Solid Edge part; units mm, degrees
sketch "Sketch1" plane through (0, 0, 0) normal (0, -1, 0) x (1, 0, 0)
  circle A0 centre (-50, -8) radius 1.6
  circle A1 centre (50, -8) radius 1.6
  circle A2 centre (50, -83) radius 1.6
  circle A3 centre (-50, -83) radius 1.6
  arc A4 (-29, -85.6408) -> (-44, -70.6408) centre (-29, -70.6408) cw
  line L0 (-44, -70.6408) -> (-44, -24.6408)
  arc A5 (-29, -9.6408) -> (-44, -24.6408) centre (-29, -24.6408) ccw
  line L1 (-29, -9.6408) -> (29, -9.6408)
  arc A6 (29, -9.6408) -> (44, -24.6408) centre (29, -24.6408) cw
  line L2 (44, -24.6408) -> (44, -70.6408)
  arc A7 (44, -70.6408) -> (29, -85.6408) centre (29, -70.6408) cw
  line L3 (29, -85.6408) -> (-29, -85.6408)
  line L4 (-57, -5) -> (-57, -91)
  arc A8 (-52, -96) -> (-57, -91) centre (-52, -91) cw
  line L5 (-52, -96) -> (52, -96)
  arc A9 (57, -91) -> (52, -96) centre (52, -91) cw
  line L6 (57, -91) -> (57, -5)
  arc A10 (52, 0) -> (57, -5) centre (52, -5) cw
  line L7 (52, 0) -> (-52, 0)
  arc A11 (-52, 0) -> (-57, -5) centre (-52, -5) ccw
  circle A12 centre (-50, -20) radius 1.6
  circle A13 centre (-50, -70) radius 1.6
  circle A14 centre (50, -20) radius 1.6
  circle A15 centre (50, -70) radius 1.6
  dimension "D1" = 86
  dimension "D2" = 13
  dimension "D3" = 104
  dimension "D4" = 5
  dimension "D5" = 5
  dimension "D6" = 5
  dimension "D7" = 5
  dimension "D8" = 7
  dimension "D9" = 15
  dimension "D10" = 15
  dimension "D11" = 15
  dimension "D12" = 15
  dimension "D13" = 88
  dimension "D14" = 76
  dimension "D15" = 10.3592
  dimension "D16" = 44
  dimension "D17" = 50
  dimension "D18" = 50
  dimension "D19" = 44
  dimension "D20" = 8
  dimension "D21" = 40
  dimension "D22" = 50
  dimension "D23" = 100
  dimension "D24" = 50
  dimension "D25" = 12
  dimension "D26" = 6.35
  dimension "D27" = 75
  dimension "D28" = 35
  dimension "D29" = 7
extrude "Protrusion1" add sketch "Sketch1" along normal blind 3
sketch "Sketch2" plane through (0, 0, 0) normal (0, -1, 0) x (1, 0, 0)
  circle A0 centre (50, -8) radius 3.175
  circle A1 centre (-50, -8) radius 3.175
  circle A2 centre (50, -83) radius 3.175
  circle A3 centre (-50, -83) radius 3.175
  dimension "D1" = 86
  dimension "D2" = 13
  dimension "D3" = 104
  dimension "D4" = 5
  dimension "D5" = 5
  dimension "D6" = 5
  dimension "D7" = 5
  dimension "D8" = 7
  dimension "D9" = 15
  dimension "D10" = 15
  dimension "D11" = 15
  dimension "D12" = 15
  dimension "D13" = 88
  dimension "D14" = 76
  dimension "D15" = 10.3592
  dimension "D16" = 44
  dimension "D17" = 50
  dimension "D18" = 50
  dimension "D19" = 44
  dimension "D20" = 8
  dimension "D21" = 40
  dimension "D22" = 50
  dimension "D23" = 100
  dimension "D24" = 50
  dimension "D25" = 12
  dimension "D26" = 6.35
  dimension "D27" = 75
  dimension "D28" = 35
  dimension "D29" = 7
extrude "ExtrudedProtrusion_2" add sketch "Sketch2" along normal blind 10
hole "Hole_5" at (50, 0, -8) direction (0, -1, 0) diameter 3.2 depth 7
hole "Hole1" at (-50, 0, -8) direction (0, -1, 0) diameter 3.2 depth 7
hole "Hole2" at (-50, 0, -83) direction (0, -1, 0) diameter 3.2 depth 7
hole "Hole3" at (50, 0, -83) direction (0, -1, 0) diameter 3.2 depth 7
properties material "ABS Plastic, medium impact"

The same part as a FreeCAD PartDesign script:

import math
import FreeCAD as App
import Part
import Sketcher
from FreeCAD import Vector

doc = App.newDocument("Part")
params = doc.addObject("Spreadsheet::Sheet", "Params")
for row, (alias, value) in enumerate([
    ("sketch1_radius", "5 mm"),
    ("sketch1_radius2", "15 mm"),
    ("sketch1_diameter", "3.2 mm"),
    ("sketch1_width", "104 mm"),
    ("sketch1_width2", "58 mm"),
    ("pad1_length", "3 mm"),
    ("sketch2_diameter", "6.35 mm"),
    ("pad2_length", "10 mm"),
    ("sketch3_diameter", "3.2 mm"),
    ("hole_diameter", "3.2 mm"),
    ("hole_depth", "7 mm"),
    ("sketch4_diameter", "3.2 mm"),
    ("hole2_diameter", "3.2 mm"),
    ("hole2_depth", "7 mm"),
    ("sketch5_diameter", "3.2 mm"),
    ("hole3_diameter", "3.2 mm"),
    ("hole3_depth", "7 mm"),
    ("sketch6_diameter", "3.2 mm"),
    ("hole4_diameter", "3.2 mm"),
    ("hole4_depth", "7 mm"),
], start=1):
    params.set(f"A{row}", alias)
    params.set(f"B{row}", "=" + value)
    params.setAlias(f"B{row}", alias)

body = doc.addObject("PartDesign::Body", "Body")

# Sketch on XZ plane
sketch1 = doc.addObject("Sketcher::SketchObject", "Sketch")
body.addObject(sketch1)
sketch1.AttachmentSupport = (doc.XZ_Plane, [""])
sketch1.MapMode = "FlatFace"
sketch1.addGeometry([
    Part.ArcOfCircle(Part.Circle(Vector(-52, -5, 0), Vector(0, 0, 1), 5), math.radians(90), math.radians(180)),  # 0
    Part.LineSegment(Vector(-57, -5, 0), Vector(-57, -91, 0)),  # 1
    Part.ArcOfCircle(Part.Circle(Vector(-52, -91, 0), Vector(0, 0, 1), 5), math.radians(180), math.radians(270)),  # 2
    Part.LineSegment(Vector(-52, -96, 0), Vector(52, -96, 0)),  # 3
    Part.ArcOfCircle(Part.Circle(Vector(52, -91, 0), Vector(0, 0, 1), 5), math.radians(-90), math.radians(0)),  # 4
    Part.LineSegment(Vector(57, -91, 0), Vector(57, -5, 0)),  # 5
    Part.ArcOfCircle(Part.Circle(Vector(52, -5, 0), Vector(0, 0, 1), 5), math.radians(0), math.radians(90)),  # 6
    Part.LineSegment(Vector(52, 0, 0), Vector(-52, 0, 0)),  # 7
    Part.Circle(Vector(-50, -83, 0), Vector(0, 0, 1), 1.6),  # 8
    Part.Circle(Vector(-50, -70, 0), Vector(0, 0, 1), 1.6),  # 9
    Part.Circle(Vector(50, -83, 0), Vector(0, 0, 1), 1.6),  # 10
    Part.Circle(Vector(50, -70, 0), Vector(0, 0, 1), 1.6),  # 11
    Part.Circle(Vector(-50, -20, 0), Vector(0, 0, 1), 1.6),  # 12
    Part.Circle(Vector(-50, -8, 0), Vector(0, 0, 1), 1.6),  # 13
    Part.LineSegment(Vector(29, -85.6, 0), Vector(-29, -85.6, 0)),  # 14
    Part.ArcOfCircle(Part.Circle(Vector(-29, -70.6, 0), Vector(0, 0, 1), 15), math.radians(180), math.radians(270)),  # 15
    Part.LineSegment(Vector(-44, -70.6, 0), Vector(-44, -24.6, 0)),  # 16
    Part.ArcOfCircle(Part.Circle(Vector(-29, -24.6, 0), Vector(0, 0, 1), 15), math.radians(90), math.radians(180)),  # 17
    Part.LineSegment(Vector(-29, -9.6, 0), Vector(29, -9.6, 0)),  # 18
    Part.ArcOfCircle(Part.Circle(Vector(29, -24.6, 0), Vector(0, 0, 1), 15), math.radians(0), math.radians(90)),  # 19
    Part.LineSegment(Vector(44, -24.6, 0), Vector(44, -70.6, 0)),  # 20
    Part.ArcOfCircle(Part.Circle(Vector(29, -70.6, 0), Vector(0, 0, 1), 15), math.radians(-90), math.radians(0)),  # 21
    Part.Circle(Vector(50, -20, 0), Vector(0, 0, 1), 1.6),  # 22
    Part.Circle(Vector(50, -8, 0), Vector(0, 0, 1), 1.6),  # 23
], False)
sketch1.addConstraint([
    Sketcher.Constraint("Tangent", 0, 2, 1, 1),
    Sketcher.Constraint("Tangent", 1, 2, 2, 1),
    Sketcher.Constraint("Tangent", 2, 2, 3, 1),
    Sketcher.Constraint("Tangent", 3, 2, 4, 1),
    Sketcher.Constraint("Tangent", 4, 2, 5, 1),
    Sketcher.Constraint("Tangent", 5, 2, 6, 1),
    Sketcher.Constraint("Tangent", 6, 2, 7, 1),
    Sketcher.Constraint("Tangent", 7, 2, 0, 1),
    Sketcher.Constraint("Tangent", 14, 2, 15, 2),
    Sketcher.Constraint("Tangent", 15, 1, 16, 1),
    Sketcher.Constraint("Tangent", 16, 2, 17, 2),
    Sketcher.Constraint("Tangent", 17, 1, 18, 1),
    Sketcher.Constraint("Tangent", 18, 2, 19, 2),
    Sketcher.Constraint("Tangent", 19, 1, 20, 1),
    Sketcher.Constraint("Tangent", 20, 2, 21, 2),
    Sketcher.Constraint("Tangent", 21, 1, 14, 1),
    Sketcher.Constraint("Vertical", 1),
    Sketcher.Constraint("Horizontal", 3),
    Sketcher.Constraint("Vertical", 5),
    Sketcher.Constraint("Horizontal", 7),
    Sketcher.Constraint("Horizontal", 14),
    Sketcher.Constraint("Vertical", 16),
    Sketcher.Constraint("Horizontal", 18),
    Sketcher.Constraint("Vertical", 20),
    Sketcher.Constraint("Equal", 0, 2),
    Sketcher.Constraint("Equal", 2, 4),
    Sketcher.Constraint("Equal", 4, 6),
    Sketcher.Constraint("Equal", 8, 9),
    Sketcher.Constraint("Equal", 9, 10),
    Sketcher.Constraint("Equal", 10, 11),
    Sketcher.Constraint("Equal", 11, 12),
    Sketcher.Constraint("Equal", 12, 13),
    Sketcher.Constraint("Equal", 15, 17),
    Sketcher.Constraint("Equal", 17, 19),
    Sketcher.Constraint("Equal", 19, 21),
    Sketcher.Constraint("Equal", 13, 22),
    Sketcher.Constraint("Equal", 22, 23),
    Sketcher.Constraint("Symmetric", 6, 2, 7, 2, -1, 1),
    Sketcher.Constraint("Symmetric", 8, 3, 10, 3, -2),
    Sketcher.Constraint("Symmetric", 9, 3, 11, 3, -2),
    Sketcher.Constraint("Symmetric", 12, 3, 22, 3, -2),
    Sketcher.Constraint("Symmetric", 13, 3, 23, 3, -2),
    Sketcher.Constraint("Vertical", 8, 3, 9, 3),
    Sketcher.Constraint("Vertical", 9, 3, 12, 3),
    Sketcher.Constraint("Vertical", 12, 3, 13, 3),
    Sketcher.Constraint("Radius", 0, 5.0),
    Sketcher.Constraint("Radius", 15, 15.0),
    Sketcher.Constraint("Diameter", 8, 3.2),
    Sketcher.Constraint("DistanceX", 3, 1, 3, 2, 104.0),
    Sketcher.Constraint("DistanceX", 14, 2, 14, 1, 58.0),
    Sketcher.Constraint("DistanceY", 1, 2, 1, 1, 86.0),
    Sketcher.Constraint("DistanceY", 16, 1, 16, 2, 46.0),
    Sketcher.Constraint("DistanceX", 8, 3, -1, 1, 50.0),
    Sketcher.Constraint("DistanceY", 8, 3, -1, 1, 83.0),
    Sketcher.Constraint("DistanceY", 9, 3, -1, 1, 70.0),
    Sketcher.Constraint("DistanceY", 12, 3, -1, 1, 20.0),
    Sketcher.Constraint("DistanceY", 13, 3, -1, 1, 8.0),
    Sketcher.Constraint("DistanceX", 15, 3, -1, 1, 29.0),
    Sketcher.Constraint("DistanceY", 15, 3, -1, 1, 70.6408),
])
sketch1.setExpression("Constraints[45]", "Params.sketch1_radius")
sketch1.setExpression("Constraints[46]", "Params.sketch1_radius2")
sketch1.setExpression("Constraints[47]", "Params.sketch1_diameter")
sketch1.setExpression("Constraints[48]", "Params.sketch1_width")
sketch1.setExpression("Constraints[49]", "Params.sketch1_width2")
pad1 = doc.addObject("PartDesign::Pad", "Pad")
body.addObject(pad1)
pad1.Profile = sketch1
pad1.setExpression("Length", "Params.pad1_length")

# Sketch on XZ plane
sketch2 = doc.addObject("Sketcher::SketchObject", "Sketch001")
body.addObject(sketch2)
sketch2.AttachmentSupport = (doc.XZ_Plane, [""])
sketch2.MapMode = "FlatFace"
sketch2.addGeometry([
    Part.Circle(Vector(50, -8, 0), Vector(0, 0, 1), 3.2),
    Part.Circle(Vector(-50, -8, 0), Vector(0, 0, 1), 3.2),
    Part.Circle(Vector(50, -83, 0), Vector(0, 0, 1), 3.2),
    Part.Circle(Vector(-50, -83, 0), Vector(0, 0, 1), 3.2),
], False)
sketch2.addConstraint([
    Sketcher.Constraint("Equal", 0, 1),
    Sketcher.Constraint("Equal", 1, 2),
    Sketcher.Constraint("Equal", 2, 3),
    Sketcher.Constraint("Symmetric", 0, 3, 1, 3, -2),
    Sketcher.Constraint("Symmetric", 2, 3, 3, 3, -2),
    Sketcher.Constraint("Vertical", 0, 3, 2, 3),
    Sketcher.Constraint("Diameter", 0, 6.35),
    Sketcher.Constraint("DistanceX", -1, 1, 0, 3, 50.0),
    Sketcher.Constraint("DistanceY", 0, 3, -1, 1, 8.0),
    Sketcher.Constraint("DistanceY", 2, 3, -1, 1, 83.0),
])
sketch2.setExpression("Constraints[6]", "Params.sketch2_diameter")
pad2 = doc.addObject("PartDesign::Pad", "Pad001")
body.addObject(pad2)
pad2.Profile = sketch2
pad2.setExpression("Length", "Params.pad2_length")

# Sketch on XZ plane
sketch3 = doc.addObject("Sketcher::SketchObject", "Sketch002")
body.addObject(sketch3)
sketch3.AttachmentSupport = (doc.XZ_Plane, [""])
sketch3.MapMode = "FlatFace"
sketch3.addGeometry(Part.Circle(Vector(50, -8, 0), Vector(0, 0, 1), 1.6), False)
sketch3.addConstraint([
    Sketcher.Constraint("Diameter", 0, 3.2),
    Sketcher.Constraint("DistanceX", -1, 1, 0, 3, 50.0),
    Sketcher.Constraint("DistanceY", 0, 3, -1, 1, 8.0),
])
sketch3.setExpression("Constraints[0]", "Params.sketch3_diameter")
doc.recompute()
hole = doc.addObject("PartDesign::Hole", "Hole")
body.addObject(hole)
hole.Profile = sketch3
hole.ThreadType = "None"
hole.setExpression("Diameter", "Params.hole_diameter")
hole.DepthType = "Dimension"
hole.setExpression("Depth", "Params.hole_depth")
hole.DrillPoint = "Flat"
hole.Reversed = True

# Sketch on XZ plane
sketch4 = doc.addObject("Sketcher::SketchObject", "Sketch003")
body.addObject(sketch4)
sketch4.AttachmentSupport = (doc.XZ_Plane, [""])
sketch4.MapMode = "FlatFace"
sketch4.addGeometry(Part.Circle(Vector(-50, -8, 0), Vector(0, 0, 1), 1.6), False)
sketch4.addConstraint([
    Sketcher.Constraint("Diameter", 0, 3.2),
    Sketcher.Constraint("DistanceX", 0, 3, -1, 1, 50.0),
    Sketcher.Constraint("DistanceY", 0, 3, -1, 1, 8.0),
])
sketch4.setExpression("Constraints[0]", "Params.sketch4_diameter")
doc.recompute()
hole2 = doc.addObject("PartDesign::Hole", "Hole001")
body.addObject(hole2)
hole2.Profile = sketch4
hole2.ThreadType = "None"
hole2.setExpression("Diameter", "Params.hole2_diameter")
hole2.DepthType = "Dimension"
hole2.setExpression("Depth", "Params.hole2_depth")
hole2.DrillPoint = "Flat"
hole2.Reversed = True

# Sketch on XZ plane
sketch5 = doc.addObject("Sketcher::SketchObject", "Sketch004")
body.addObject(sketch5)
sketch5.AttachmentSupport = (doc.XZ_Plane, [""])
sketch5.MapMode = "FlatFace"
sketch5.addGeometry(Part.Circle(Vector(-50, -83, 0), Vector(0, 0, 1), 1.6), False)
sketch5.addConstraint([
    Sketcher.Constraint("Diameter", 0, 3.2),
    Sketcher.Constraint("DistanceX", 0, 3, -1, 1, 50.0),
    Sketcher.Constraint("DistanceY", 0, 3, -1, 1, 83.0),
])
sketch5.setExpression("Constraints[0]", "Params.sketch5_diameter")
doc.recompute()
hole3 = doc.addObject("PartDesign::Hole", "Hole002")
body.addObject(hole3)
hole3.Profile = sketch5
hole3.ThreadType = "None"
hole3.setExpression("Diameter", "Params.hole3_diameter")
hole3.DepthType = "Dimension"
hole3.setExpression("Depth", "Params.hole3_depth")
hole3.DrillPoint = "Flat"
hole3.Reversed = True

# Sketch on XZ plane
sketch6 = doc.addObject("Sketcher::SketchObject", "Sketch005")
body.addObject(sketch6)
sketch6.AttachmentSupport = (doc.XZ_Plane, [""])
sketch6.MapMode = "FlatFace"
sketch6.addGeometry(Part.Circle(Vector(50, -83, 0), Vector(0, 0, 1), 1.6), False)
sketch6.addConstraint([
    Sketcher.Constraint("Diameter", 0, 3.2),
    Sketcher.Constraint("DistanceX", -1, 1, 0, 3, 50.0),
    Sketcher.Constraint("DistanceY", 0, 3, -1, 1, 83.0),
])
sketch6.setExpression("Constraints[0]", "Params.sketch6_diameter")
doc.recompute()
hole4 = doc.addObject("PartDesign::Hole", "Hole003")
body.addObject(hole4)
hole4.Profile = sketch6
hole4.ThreadType = "None"
hole4.setExpression("Diameter", "Params.hole4_diameter")
hole4.DepthType = "Dimension"
hole4.setExpression("Depth", "Params.hole4_depth")
hole4.DrillPoint = "Flat"
hole4.Reversed = True

doc.recompute()
